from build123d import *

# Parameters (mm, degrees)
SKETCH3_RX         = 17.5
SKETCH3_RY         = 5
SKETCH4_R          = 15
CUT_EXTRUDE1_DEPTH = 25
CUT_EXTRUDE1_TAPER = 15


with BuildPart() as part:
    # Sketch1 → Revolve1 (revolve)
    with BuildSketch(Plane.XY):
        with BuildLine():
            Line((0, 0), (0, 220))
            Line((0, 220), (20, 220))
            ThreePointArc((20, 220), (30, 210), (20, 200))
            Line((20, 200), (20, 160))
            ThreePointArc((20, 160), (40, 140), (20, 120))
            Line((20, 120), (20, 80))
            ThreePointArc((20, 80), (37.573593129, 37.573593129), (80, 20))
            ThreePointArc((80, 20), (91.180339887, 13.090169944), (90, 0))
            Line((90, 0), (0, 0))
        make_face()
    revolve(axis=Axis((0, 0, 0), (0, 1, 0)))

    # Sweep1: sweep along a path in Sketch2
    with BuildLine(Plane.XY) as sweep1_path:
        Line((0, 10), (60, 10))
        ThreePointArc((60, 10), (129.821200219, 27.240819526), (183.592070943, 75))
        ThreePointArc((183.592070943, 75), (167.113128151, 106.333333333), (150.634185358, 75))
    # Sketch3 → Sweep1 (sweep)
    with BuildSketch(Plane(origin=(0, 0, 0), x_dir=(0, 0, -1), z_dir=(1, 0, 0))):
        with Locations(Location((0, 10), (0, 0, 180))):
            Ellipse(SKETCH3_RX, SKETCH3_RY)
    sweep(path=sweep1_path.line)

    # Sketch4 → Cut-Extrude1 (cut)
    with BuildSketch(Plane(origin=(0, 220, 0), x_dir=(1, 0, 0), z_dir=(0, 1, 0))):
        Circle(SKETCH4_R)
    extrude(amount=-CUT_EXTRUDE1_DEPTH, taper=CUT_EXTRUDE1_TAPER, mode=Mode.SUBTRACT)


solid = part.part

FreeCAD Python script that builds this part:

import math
import FreeCAD as App
import Part
import Sketcher
from FreeCAD import Vector
Q = App.Units.Quantity

doc = App.newDocument("Part")
body = doc.addObject("PartDesign::Body", "Body")

sketch1 = body.newObject("Sketcher::SketchObject", "Sketch")
sketch1.AttachmentSupport = (doc.getObject("XY_Plane"), [""])
sketch1.MapMode = "FlatFace"
sketch1.addGeometry([
    Part.LineSegment(Vector(0, 220, 0), Vector(0, 0, 0)),
    Part.LineSegment(Vector(0, 0, 0), Vector(90, 0, 0)),
    Part.ArcOfCircle(Part.Circle(Vector(80, 8, 0), Vector(0, 0, 1), 12), math.radians(-37), math.radians(90)),
    Part.ArcOfCircle(Part.Circle(Vector(80, 80, 0), Vector(0, 0, 1), 60), math.radians(-180), math.radians(-90)),
    Part.LineSegment(Vector(20, 80, 0), Vector(20, 120, 0)),
    Part.ArcOfCircle(Part.Circle(Vector(20, 140, 0), Vector(0, 0, 1), 20), math.radians(-90), math.radians(90)),
    Part.LineSegment(Vector(20, 160, 0), Vector(20, 200, 0)),
    Part.ArcOfCircle(Part.Circle(Vector(20, 210, 0), Vector(0, 0, 1), 10), math.radians(-90), math.radians(90)),
    Part.LineSegment(Vector(20, 220, 0), Vector(0, 220, 0)),
], False)
sketch1.addConstraint([
    Sketcher.Constraint("Coincident", 0, 2, 1, 1),
    Sketcher.Constraint("Coincident", 1, 2, 2, 1),
    Sketcher.Constraint("Tangent", 2, 2, 3, 2),
    Sketcher.Constraint("Tangent", 3, 1, 4, 1),
    Sketcher.Constraint("Coincident", 4, 2, 5, 1),
    Sketcher.Constraint("Coincident", 5, 2, 6, 1),
    Sketcher.Constraint("Coincident", 6, 2, 7, 1),
    Sketcher.Constraint("Tangent", 7, 2, 8, 1),
    Sketcher.Constraint("Coincident", 8, 2, 0, 1),
    Sketcher.Constraint("Vertical", 0),
    Sketcher.Constraint("Horizontal", 1),
    Sketcher.Constraint("Vertical", 4),
    Sketcher.Constraint("Vertical", 6),
    Sketcher.Constraint("Horizontal", 8),
    Sketcher.Constraint("Coincident", 0, 2, -1, 1),
    Sketcher.Constraint("Vertical", 2, 3, 3, 3),
    Sketcher.Constraint("Vertical", 5, 3, 7, 3),
    Sketcher.Constraint("Vertical", 7, 3, 3, 1),
    Sketcher.Constraint("Vertical", 4, 2, 5, 2),
    Sketcher.Constraint("Equal", 4, 6),
    Sketcher.Constraint("Radius", 3, Q("60 mm")),
    Sketcher.Constraint("Radius", 5, Q("20 mm")),
    Sketcher.Constraint("Radius", 7, Q("10 mm")),
    Sketcher.Constraint("Radius", 2, Q("12.5 mm")),
    Sketcher.Constraint("DistanceX", 1, 1, 1, 2, Q("90 mm")),
    Sketcher.Constraint("DistanceX", 8, 2, 8, 1, Q("20 mm")),
    Sketcher.Constraint("DistanceY", 0, 2, 0, 1, Q("220 mm")),
])
revolution = body.newObject("PartDesign::Revolution", "Revolution")
revolution.Profile = sketch1
revolution.ReferenceAxis = (sketch1, ["V_Axis"])
revolution.Angle = 360

sketch2 = body.newObject("Sketcher::SketchObject", "Sketch001")
sketch2.AttachmentSupport = (doc.getObject("YZ_Plane"), [""])
sketch2.MapMode = "FlatFace"
sketch2.addGeometry(Part.Ellipse(Vector(10, 17.5, 0), Vector(5, 0, 0), Vector(10, 0, 0)), False)
sketch2.addConstraint(Sketcher.Constraint("Block", 0))

sketch3 = body.newObject("Sketcher::SketchObject", "Sketch002")
sketch3.AttachmentSupport = (doc.getObject("XY_Plane"), [""])
sketch3.MapMode = "FlatFace"
sketch3.addGeometry([
    Part.LineSegment(Vector(0, 10, 0), Vector(60, 10, 0)),
    Part.ArcOfCircle(Part.Circle(Vector(60, 160, 0), Vector(0, 0, 1), 150), math.radians(-90), math.radians(-35)),
    Part.ArcOfCircle(Part.Circle(Vector(167, 86, 0), Vector(0, 0, 1), 20), math.radians(-35), math.radians(215)),
], False)
sketch3.addConstraint([
    Sketcher.Constraint("Tangent", 0, 2, 1, 1),
    Sketcher.Constraint("Tangent", 1, 2, 2, 1),
    Sketcher.Constraint("Horizontal", 0),
    Sketcher.Constraint("PointOnObject", 0, 1, -2),
    Sketcher.Constraint("Horizontal", 1, 2, 2, 2),
    Sketcher.Constraint("Radius", 1, Q("150 mm")),
    Sketcher.Constraint("Radius", 2, Q("20 mm")),
    Sketcher.Constraint("DistanceX", 0, 1, 0, 2, Q("60 mm")),
    Sketcher.Constraint("DistanceY", -1, 1, 1, 3, Q("160 mm")),
    Sketcher.Constraint("DistanceY", -1, 1, 1, 2, Q("75 mm")),
])
doc.recompute()

additivepipe = body.newObject("PartDesign::AdditivePipe", "AdditivePipe")
additivepipe.Profile = sketch2
additivepipe.Spine = (sketch3, ["Edge1", "Edge2", "Edge3"])

sketch4 = body.newObject("Sketcher::SketchObject", "Sketch003")
sketch4.AttachmentSupport = (doc.getObject("XZ_Plane"), [""])
sketch4.MapMode = "FlatFace"
sketch4.AttachmentOffset = App.Placement(Vector(0, 0, -220), App.Rotation())
sketch4.addGeometry(Part.Circle(Vector(0, 0, 0), Vector(0, 0, 1), 15), False)
sketch4.addConstraint([
    Sketcher.Constraint("Coincident", 0, 3, -1, 1),
    Sketcher.Constraint("Diameter", 0, Q("30 mm")),
])
pocket1 = body.newObject("PartDesign::Pocket", "Pocket")
pocket1.Profile = sketch4
pocket1.Length = 25
pocket1.Reversed = True
pocket1.TaperAngle = -15

doc.recompute()
